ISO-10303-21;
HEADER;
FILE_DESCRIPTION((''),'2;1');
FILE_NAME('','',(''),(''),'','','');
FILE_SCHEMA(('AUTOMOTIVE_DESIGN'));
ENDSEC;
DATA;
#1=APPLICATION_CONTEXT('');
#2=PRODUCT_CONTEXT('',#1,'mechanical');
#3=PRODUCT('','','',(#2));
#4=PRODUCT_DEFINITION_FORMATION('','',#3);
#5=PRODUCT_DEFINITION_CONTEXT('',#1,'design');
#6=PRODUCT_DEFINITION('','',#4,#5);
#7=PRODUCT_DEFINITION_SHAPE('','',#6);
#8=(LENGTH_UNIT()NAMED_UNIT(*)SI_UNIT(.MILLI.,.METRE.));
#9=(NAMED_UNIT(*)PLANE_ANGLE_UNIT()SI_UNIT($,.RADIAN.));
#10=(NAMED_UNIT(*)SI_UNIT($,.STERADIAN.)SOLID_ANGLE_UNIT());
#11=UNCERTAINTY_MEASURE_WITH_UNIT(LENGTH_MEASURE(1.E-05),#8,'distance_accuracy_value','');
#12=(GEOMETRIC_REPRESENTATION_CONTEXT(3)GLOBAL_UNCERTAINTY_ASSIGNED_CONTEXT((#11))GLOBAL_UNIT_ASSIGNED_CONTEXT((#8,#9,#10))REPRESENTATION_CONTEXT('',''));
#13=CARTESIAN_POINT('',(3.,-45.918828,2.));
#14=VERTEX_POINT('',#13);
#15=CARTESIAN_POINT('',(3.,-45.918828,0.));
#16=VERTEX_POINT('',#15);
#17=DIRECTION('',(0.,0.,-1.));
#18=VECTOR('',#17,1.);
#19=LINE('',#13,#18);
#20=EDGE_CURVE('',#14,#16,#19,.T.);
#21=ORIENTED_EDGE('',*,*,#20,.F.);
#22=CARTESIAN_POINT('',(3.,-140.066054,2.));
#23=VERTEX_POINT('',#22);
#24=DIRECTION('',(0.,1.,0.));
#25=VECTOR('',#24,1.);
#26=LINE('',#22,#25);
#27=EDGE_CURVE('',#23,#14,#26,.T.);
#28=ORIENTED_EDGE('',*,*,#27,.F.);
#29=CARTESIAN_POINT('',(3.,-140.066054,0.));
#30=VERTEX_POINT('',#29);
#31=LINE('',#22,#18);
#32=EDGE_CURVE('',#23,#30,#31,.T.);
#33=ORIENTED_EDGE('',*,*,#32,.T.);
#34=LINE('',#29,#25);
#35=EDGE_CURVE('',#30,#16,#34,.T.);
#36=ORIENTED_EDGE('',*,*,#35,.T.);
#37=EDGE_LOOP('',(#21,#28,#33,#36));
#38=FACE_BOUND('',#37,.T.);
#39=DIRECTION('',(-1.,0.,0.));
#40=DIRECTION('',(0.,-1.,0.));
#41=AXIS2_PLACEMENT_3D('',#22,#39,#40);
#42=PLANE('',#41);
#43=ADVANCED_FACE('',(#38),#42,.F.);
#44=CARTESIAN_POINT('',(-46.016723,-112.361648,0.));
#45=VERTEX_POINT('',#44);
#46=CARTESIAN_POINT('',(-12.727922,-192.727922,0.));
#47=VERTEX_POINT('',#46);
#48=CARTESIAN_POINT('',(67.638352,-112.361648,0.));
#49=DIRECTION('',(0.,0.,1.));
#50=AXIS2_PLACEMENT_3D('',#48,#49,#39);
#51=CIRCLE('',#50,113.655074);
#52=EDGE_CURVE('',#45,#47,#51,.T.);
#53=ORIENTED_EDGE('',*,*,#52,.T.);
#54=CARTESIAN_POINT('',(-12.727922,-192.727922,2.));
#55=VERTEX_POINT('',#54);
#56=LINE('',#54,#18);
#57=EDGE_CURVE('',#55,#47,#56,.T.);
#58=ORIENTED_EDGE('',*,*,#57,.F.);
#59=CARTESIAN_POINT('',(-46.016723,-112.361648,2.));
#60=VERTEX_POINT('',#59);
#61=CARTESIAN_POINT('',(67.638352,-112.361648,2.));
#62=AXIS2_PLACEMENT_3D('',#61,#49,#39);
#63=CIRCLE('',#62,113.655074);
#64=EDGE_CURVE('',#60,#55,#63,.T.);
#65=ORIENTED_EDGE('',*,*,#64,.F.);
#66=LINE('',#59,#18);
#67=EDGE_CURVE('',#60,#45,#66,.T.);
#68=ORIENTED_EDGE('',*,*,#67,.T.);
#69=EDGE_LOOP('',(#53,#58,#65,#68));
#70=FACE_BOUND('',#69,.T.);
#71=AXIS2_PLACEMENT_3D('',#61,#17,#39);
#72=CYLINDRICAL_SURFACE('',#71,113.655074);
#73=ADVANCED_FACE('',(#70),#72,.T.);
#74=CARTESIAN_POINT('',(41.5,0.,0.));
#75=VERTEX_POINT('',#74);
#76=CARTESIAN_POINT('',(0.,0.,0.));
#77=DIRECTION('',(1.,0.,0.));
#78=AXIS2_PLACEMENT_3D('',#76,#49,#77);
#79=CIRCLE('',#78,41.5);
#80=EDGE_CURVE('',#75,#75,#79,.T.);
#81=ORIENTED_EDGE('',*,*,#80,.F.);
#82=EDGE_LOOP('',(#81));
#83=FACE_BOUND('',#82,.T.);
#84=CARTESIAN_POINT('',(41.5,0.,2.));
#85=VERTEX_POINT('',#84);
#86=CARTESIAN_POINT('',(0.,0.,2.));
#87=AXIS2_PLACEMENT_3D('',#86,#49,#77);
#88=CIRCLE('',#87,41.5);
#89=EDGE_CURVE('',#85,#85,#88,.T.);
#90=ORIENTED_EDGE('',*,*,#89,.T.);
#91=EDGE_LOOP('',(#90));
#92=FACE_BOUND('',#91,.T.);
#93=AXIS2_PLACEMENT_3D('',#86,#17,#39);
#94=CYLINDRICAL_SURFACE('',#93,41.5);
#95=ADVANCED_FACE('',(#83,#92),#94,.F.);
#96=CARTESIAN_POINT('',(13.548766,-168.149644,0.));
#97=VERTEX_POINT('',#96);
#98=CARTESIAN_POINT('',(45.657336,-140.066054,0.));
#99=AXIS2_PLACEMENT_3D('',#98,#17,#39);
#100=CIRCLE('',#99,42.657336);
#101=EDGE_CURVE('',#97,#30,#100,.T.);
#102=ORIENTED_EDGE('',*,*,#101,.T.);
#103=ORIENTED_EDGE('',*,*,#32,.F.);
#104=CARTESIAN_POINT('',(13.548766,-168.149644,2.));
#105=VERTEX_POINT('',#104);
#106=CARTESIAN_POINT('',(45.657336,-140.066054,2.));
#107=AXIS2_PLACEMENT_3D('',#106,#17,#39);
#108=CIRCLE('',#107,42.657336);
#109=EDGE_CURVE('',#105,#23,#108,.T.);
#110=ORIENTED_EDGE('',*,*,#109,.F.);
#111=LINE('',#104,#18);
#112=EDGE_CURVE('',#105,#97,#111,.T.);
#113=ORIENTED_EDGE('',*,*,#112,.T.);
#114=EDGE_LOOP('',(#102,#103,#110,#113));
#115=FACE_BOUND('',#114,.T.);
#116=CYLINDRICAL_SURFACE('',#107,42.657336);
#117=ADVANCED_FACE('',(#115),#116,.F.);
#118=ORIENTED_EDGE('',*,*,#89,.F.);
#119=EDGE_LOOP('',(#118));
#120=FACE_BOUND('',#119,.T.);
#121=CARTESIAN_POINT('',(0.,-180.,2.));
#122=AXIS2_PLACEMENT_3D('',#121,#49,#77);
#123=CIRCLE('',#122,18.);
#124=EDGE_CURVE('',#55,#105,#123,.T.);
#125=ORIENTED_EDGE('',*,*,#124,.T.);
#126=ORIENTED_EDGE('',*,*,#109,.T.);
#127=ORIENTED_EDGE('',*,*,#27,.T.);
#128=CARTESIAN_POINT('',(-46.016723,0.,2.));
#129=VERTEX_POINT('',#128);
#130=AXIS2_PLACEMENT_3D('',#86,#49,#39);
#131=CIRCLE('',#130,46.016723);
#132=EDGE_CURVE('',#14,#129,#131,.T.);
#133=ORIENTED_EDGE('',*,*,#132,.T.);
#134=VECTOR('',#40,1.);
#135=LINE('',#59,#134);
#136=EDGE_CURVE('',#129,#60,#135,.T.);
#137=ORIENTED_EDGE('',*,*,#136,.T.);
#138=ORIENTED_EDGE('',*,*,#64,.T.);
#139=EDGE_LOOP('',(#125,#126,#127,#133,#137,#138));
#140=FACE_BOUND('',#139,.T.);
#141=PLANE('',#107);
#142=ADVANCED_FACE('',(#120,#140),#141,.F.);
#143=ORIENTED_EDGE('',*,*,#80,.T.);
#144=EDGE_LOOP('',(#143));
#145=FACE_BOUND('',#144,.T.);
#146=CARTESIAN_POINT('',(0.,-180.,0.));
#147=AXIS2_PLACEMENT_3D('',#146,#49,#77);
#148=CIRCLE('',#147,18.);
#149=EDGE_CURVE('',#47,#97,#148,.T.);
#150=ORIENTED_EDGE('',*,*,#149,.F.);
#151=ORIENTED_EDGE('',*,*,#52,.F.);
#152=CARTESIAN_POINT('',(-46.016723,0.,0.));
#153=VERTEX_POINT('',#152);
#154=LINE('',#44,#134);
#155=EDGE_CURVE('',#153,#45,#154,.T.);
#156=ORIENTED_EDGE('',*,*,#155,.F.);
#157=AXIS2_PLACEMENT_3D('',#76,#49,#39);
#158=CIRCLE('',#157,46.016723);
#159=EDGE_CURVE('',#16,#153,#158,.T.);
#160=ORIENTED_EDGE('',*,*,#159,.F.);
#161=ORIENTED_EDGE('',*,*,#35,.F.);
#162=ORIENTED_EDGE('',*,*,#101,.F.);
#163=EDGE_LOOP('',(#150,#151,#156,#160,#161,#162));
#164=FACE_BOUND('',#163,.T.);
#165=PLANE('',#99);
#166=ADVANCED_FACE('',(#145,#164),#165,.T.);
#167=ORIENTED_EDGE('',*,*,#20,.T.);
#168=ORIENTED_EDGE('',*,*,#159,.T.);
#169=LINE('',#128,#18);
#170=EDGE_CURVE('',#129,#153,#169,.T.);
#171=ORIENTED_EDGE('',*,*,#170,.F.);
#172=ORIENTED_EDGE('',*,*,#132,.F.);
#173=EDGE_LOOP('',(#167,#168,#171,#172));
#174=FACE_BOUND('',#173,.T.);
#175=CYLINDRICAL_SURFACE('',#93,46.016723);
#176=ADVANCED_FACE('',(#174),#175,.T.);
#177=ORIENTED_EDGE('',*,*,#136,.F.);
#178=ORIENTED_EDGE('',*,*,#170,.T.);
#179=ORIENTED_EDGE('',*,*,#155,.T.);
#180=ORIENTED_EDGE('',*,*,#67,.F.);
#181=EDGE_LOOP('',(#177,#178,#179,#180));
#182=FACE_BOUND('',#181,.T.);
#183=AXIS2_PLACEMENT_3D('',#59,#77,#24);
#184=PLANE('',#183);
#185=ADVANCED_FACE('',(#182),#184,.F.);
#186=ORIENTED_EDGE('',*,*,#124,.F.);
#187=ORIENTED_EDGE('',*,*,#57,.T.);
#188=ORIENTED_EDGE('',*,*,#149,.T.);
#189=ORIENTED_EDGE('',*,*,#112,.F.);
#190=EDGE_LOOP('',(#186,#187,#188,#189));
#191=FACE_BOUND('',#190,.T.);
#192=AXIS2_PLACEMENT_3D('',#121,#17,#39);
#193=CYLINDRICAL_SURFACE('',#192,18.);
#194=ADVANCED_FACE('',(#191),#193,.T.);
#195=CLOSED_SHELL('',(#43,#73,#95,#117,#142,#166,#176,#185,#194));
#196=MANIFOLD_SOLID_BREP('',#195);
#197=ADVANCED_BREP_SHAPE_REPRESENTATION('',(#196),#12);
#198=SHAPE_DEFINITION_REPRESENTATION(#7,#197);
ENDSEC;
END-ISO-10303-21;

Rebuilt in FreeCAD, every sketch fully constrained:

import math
import FreeCAD as App
import Part
import Sketcher
Q = App.Units.Quantity

doc = App.newDocument("Part")
body = doc.addObject("PartDesign::Body", "Body")

# Sketch on XY plane
sketch1 = body.newObject("Sketcher::SketchObject", "Sketch")
sketch1.AttachmentSupport = (doc.getObject("XY_Plane"), [""])
sketch1.MapMode = "FlatFace"
sketch1.addGeometry([
    Part.LineSegment(App.Vector(3, -140, 0), App.Vector(3, -46, 0)),  # 0
    Part.ArcOfCircle(Part.Circle(App.Vector(0, 0, 0), App.Vector(0, 0, 1), 46), math.radians(-86), math.radians(180)),  # 1
    Part.LineSegment(App.Vector(-46, 0, 0), App.Vector(-46, -112, 0)),  # 2
    Part.ArcOfCircle(Part.Circle(App.Vector(68, -112, 0), App.Vector(0, 0, 1), 114), math.radians(180), math.radians(225)),  # 3
    Part.ArcOfCircle(Part.Circle(App.Vector(0, -180, 0), App.Vector(0, 0, 1), 18), math.radians(-135), math.radians(41)),  # 4
    Part.ArcOfCircle(Part.Circle(App.Vector(46, -140, 0), App.Vector(0, 0, 1), 43), math.radians(-180), math.radians(-139)),  # 5
    Part.Circle(App.Vector(0, 0, 0), App.Vector(0, 0, 1), 42),  # 6
], False)
sketch1.addConstraint([
    Sketcher.Constraint("Coincident", 0, 2, 1, 1),
    Sketcher.Constraint("Tangent", 1, 2, 2, 1),
    Sketcher.Constraint("Tangent", 2, 2, 3, 1),
    Sketcher.Constraint("Tangent", 3, 2, 4, 1),
    Sketcher.Constraint("Tangent", 4, 2, 5, 2),
    Sketcher.Constraint("Tangent", 5, 1, 0, 1),
    Sketcher.Constraint("Vertical", 0),
    Sketcher.Constraint("Vertical", 2),
    Sketcher.Constraint("Coincident", 1, 3, -1, 1),
    Sketcher.Constraint("Coincident", 6, 3, -1, 1),
    Sketcher.Constraint("PointOnObject", 4, 3, -2),
    Sketcher.Constraint("Diameter", 6, Q("83 mm")),
    Sketcher.Constraint("Radius", 4, Q("18 mm")),
    Sketcher.Constraint("DistanceY", 4, 3, -1, 1, Q("180 mm")),
    Sketcher.Constraint("DistanceX", -1, 1, 0, 2, Q("3 mm")),
    Sketcher.Constraint("Radius", 1, Q("46.016723 mm")),
    Sketcher.Constraint("Radius", 3, Q("113.655074 mm")),
    Sketcher.Constraint("Radius", 5, Q("42.657336 mm")),
])
pad1 = body.newObject("PartDesign::Pad", "Pad")
pad1.Profile = sketch1
pad1.Length = 2

doc.recompute()
